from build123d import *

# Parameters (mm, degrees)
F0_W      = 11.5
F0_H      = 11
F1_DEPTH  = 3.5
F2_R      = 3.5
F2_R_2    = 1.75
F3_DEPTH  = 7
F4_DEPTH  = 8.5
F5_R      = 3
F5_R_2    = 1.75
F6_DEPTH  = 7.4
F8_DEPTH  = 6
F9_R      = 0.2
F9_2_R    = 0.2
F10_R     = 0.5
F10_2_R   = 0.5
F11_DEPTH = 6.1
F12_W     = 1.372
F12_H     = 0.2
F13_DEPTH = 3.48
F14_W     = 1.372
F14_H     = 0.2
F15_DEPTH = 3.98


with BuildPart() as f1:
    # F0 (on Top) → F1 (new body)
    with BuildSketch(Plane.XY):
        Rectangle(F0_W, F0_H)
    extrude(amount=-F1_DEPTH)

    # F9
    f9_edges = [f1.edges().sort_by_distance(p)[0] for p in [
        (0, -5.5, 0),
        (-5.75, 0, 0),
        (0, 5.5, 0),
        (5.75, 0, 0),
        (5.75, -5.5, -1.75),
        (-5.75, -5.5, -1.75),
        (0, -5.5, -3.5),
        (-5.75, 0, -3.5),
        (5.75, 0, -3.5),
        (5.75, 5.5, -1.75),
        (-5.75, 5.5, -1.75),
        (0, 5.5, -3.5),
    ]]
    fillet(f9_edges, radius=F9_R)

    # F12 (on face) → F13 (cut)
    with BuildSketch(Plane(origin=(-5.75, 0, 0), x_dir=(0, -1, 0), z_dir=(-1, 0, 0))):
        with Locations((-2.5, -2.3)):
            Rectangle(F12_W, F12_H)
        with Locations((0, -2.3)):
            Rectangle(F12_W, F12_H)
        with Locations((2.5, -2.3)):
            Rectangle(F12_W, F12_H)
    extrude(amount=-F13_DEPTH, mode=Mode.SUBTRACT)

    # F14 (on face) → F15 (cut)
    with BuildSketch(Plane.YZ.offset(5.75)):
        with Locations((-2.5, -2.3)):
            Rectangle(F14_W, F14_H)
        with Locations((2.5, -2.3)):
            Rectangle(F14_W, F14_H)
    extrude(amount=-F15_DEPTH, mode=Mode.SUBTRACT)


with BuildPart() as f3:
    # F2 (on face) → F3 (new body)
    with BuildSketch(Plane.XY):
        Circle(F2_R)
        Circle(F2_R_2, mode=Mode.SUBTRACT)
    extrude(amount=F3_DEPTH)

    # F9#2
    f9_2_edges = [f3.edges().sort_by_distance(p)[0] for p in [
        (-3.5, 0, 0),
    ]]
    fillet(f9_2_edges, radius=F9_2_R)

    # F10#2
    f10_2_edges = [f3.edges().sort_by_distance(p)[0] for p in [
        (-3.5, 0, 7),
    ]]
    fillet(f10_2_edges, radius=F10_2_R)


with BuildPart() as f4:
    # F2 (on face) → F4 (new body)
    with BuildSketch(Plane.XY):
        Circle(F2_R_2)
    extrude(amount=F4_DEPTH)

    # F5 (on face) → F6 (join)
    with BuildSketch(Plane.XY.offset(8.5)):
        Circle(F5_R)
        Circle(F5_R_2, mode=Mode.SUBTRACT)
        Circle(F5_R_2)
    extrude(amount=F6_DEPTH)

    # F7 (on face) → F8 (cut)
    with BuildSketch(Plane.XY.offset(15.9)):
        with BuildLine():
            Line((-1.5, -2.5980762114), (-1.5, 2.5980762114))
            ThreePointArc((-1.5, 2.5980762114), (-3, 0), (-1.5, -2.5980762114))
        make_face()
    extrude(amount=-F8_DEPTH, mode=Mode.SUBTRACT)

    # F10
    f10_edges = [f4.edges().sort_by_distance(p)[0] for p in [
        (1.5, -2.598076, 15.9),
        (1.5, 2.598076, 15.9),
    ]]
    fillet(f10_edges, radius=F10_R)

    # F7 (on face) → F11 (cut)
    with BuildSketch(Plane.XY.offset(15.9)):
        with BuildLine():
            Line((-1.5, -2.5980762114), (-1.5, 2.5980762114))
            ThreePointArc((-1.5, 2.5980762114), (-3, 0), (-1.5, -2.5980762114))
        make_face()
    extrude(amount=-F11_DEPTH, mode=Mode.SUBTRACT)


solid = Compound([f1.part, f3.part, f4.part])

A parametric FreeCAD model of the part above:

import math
import FreeCAD as App
import Part
import Sketcher

V = App.Vector
Q = App.Units.Quantity


def edges_at(feature, points):
    """Names of the edges that pass closest to the given points."""
    edges = feature.Shape.Edges
    near = lambda p: min(range(len(edges)), key=lambda i: edges[i].distToShape(Part.Vertex(*p))[0])
    return sorted({f"Edge{near(p) + 1}" for p in points})

doc = App.newDocument("Part")
body = doc.addObject("PartDesign::Body", "Body")

sketch1 = doc.addObject("Sketcher::SketchObject", "Sketch")
body.addObject(sketch1)
sketch1.AttachmentSupport = (doc.XY_Plane, [""])
sketch1.MapMode = "FlatFace"
sketch1.addGeometry([
    Part.LineSegment(V(-6, 6, 0), V(-6, -6, 0)),
    Part.LineSegment(V(-6, -6, 0), V(6, -6, 0)),
    Part.LineSegment(V(6, -6, 0), V(6, 6, 0)),
    Part.LineSegment(V(6, 6, 0), V(-6, 6, 0)),
], False)
sketch1.addConstraint([
    Sketcher.Constraint("Coincident", 0, 2, 1, 1),
    Sketcher.Constraint("Coincident", 1, 2, 2, 1),
    Sketcher.Constraint("Coincident", 2, 2, 3, 1),
    Sketcher.Constraint("Coincident", 3, 2, 0, 1),
    Sketcher.Constraint("Vertical", 0),
    Sketcher.Constraint("Horizontal", 1),
    Sketcher.Constraint("Vertical", 2),
    Sketcher.Constraint("Horizontal", 3),
    Sketcher.Constraint("Symmetric", 0, 2, 2, 2, -1, 1),
    Sketcher.Constraint("DistanceY", 0, 2, 0, 1, Q("11 mm")),
    Sketcher.Constraint("DistanceX", 1, 1, 1, 2, Q("11.5 mm")),
])
pad1 = doc.addObject("PartDesign::Pad", "Pad")
body.addObject(pad1)
pad1.Profile = sketch1
pad1.Length = 3.5
pad1.Reversed = True
doc.recompute()

fillet = doc.addObject("PartDesign::Fillet", "Fillet")
body.addObject(fillet)
fillet.Base = (pad1, ["Edge1"])
fillet.UseAllEdges = True
fillet.Radius = 0.2

sketch2 = doc.addObject("Sketcher::SketchObject", "Sketch001")
body.addObject(sketch2)
sketch2.AttachmentSupport = (doc.YZ_Plane, [""])
sketch2.MapMode = "FlatFace"
sketch2.AttachmentOffset = App.Placement(V(0, 0, -5.75), App.Rotation())
sketch2.addGeometry([
    Part.LineSegment(V(3.19, -2.2, 0), V(3.19, -2.4, 0)),
    Part.LineSegment(V(3.19, -2.4, 0), V(1.81, -2.4, 0)),
    Part.LineSegment(V(1.81, -2.4, 0), V(1.81, -2.2, 0)),
    Part.LineSegment(V(1.81, -2.2, 0), V(3.19, -2.2, 0)),
    Part.LineSegment(V(0.69, -2.2, 0), V(0.69, -2.4, 0)),
    Part.LineSegment(V(0.69, -2.4, 0), V(-0.69, -2.4, 0)),
    Part.LineSegment(V(-0.69, -2.4, 0), V(-0.69, -2.2, 0)),
    Part.LineSegment(V(-0.69, -2.2, 0), V(0.69, -2.2, 0)),
    Part.LineSegment(V(-1.81, -2.2, 0), V(-1.81, -2.4, 0)),
    Part.LineSegment(V(-1.81, -2.4, 0), V(-3.19, -2.4, 0)),
    Part.LineSegment(V(-3.19, -2.4, 0), V(-3.19, -2.2, 0)),
    Part.LineSegment(V(-3.19, -2.2, 0), V(-1.81, -2.2, 0)),
], False)
sketch2.addConstraint([
    Sketcher.Constraint("Coincident", 0, 2, 1, 1),
    Sketcher.Constraint("Coincident", 1, 2, 2, 1),
    Sketcher.Constraint("Coincident", 2, 2, 3, 1),
    Sketcher.Constraint("Coincident", 3, 2, 0, 1),
    Sketcher.Constraint("Coincident", 4, 2, 5, 1),
    Sketcher.Constraint("Coincident", 5, 2, 6, 1),
    Sketcher.Constraint("Coincident", 6, 2, 7, 1),
    Sketcher.Constraint("Coincident", 7, 2, 4, 1),
    Sketcher.Constraint("Coincident", 8, 2, 9, 1),
    Sketcher.Constraint("Coincident", 9, 2, 10, 1),
    Sketcher.Constraint("Coincident", 10, 2, 11, 1),
    Sketcher.Constraint("Coincident", 11, 2, 8, 1),
    Sketcher.Constraint("Vertical", 0),
    Sketcher.Constraint("Horizontal", 1),
    Sketcher.Constraint("Vertical", 2),
    Sketcher.Constraint("Horizontal", 3),
    Sketcher.Constraint("Vertical", 4),
    Sketcher.Constraint("Horizontal", 5),
    Sketcher.Constraint("Vertical", 6),
    Sketcher.Constraint("Horizontal", 7),
    Sketcher.Constraint("Vertical", 8),
    Sketcher.Constraint("Horizontal", 9),
    Sketcher.Constraint("Vertical", 10),
    Sketcher.Constraint("Horizontal", 11),
    Sketcher.Constraint("Symmetric", 1, 2, 8, 2, -2),
    Sketcher.Constraint("Symmetric", 3, 2, 10, 2, -2),
    Sketcher.Constraint("Horizontal", 1, 2, 4, 2),
    Sketcher.Constraint("Horizontal", 3, 2, 6, 2),
    Sketcher.Constraint("Equal", 3, 5),
    Sketcher.Constraint("DistanceY", 0, 2, 0, 1, Q("0.2 mm")),
    Sketcher.Constraint("DistanceY", 0, 2, -1, 1, Q("2.4 mm")),
    Sketcher.Constraint("DistanceX", 4, 2, 0, 2, Q("2.5 mm")),
    Sketcher.Constraint("DistanceX", 8, 2, 4, 2, Q("2.5 mm")),
    Sketcher.Constraint("DistanceX", 1, 2, 1, 1, Q("1.372 mm")),
])
pocket1 = doc.addObject("PartDesign::Pocket", "Pocket")
body.addObject(pocket1)
pocket1.Profile = sketch2
pocket1.Length = 3.48
pocket1.Reversed = True

sketch3 = doc.addObject("Sketcher::SketchObject", "Sketch002")
body.addObject(sketch3)
sketch3.AttachmentSupport = (doc.YZ_Plane, [""])
sketch3.MapMode = "FlatFace"
sketch3.AttachmentOffset = App.Placement(V(0, 0, 5.75), App.Rotation())
sketch3.addGeometry([
    Part.LineSegment(V(-3.19, -2.2, 0), V(-3.19, -2.4, 0)),
    Part.LineSegment(V(-3.19, -2.4, 0), V(-1.81, -2.4, 0)),
    Part.LineSegment(V(-1.81, -2.4, 0), V(-1.81, -2.2, 0)),
    Part.LineSegment(V(-1.81, -2.2, 0), V(-3.19, -2.2, 0)),
    Part.LineSegment(V(1.81, -2.2, 0), V(1.81, -2.4, 0)),
    Part.LineSegment(V(1.81, -2.4, 0), V(3.19, -2.4, 0)),
    Part.LineSegment(V(3.19, -2.4, 0), V(3.19, -2.2, 0)),
    Part.LineSegment(V(3.19, -2.2, 0), V(1.81, -2.2, 0)),
], False)
sketch3.addConstraint([
    Sketcher.Constraint("Coincident", 0, 2, 1, 1),
    Sketcher.Constraint("Coincident", 1, 2, 2, 1),
    Sketcher.Constraint("Coincident", 2, 2, 3, 1),
    Sketcher.Constraint("Coincident", 3, 2, 0, 1),
    Sketcher.Constraint("Coincident", 4, 2, 5, 1),
    Sketcher.Constraint("Coincident", 5, 2, 6, 1),
    Sketcher.Constraint("Coincident", 6, 2, 7, 1),
    Sketcher.Constraint("Coincident", 7, 2, 4, 1),
    Sketcher.Constraint("Vertical", 0),
    Sketcher.Constraint("Horizontal", 1),
    Sketcher.Constraint("Vertical", 2),
    Sketcher.Constraint("Horizontal", 3),
    Sketcher.Constraint("Vertical", 4),
    Sketcher.Constraint("Horizontal", 5),
    Sketcher.Constraint("Vertical", 6),
    Sketcher.Constraint("Horizontal", 7),
    Sketcher.Constraint("Symmetric", 1, 2, 4, 2, -2),
    Sketcher.Constraint("Symmetric", 3, 2, 6, 2, -2),
    Sketcher.Constraint("DistanceY", 0, 2, 0, 1, Q("0.2 mm")),
    Sketcher.Constraint("DistanceX", 0, 2, 4, 2, Q("5 mm")),
    Sketcher.Constraint("DistanceY", 0, 2, -1, 1, Q("2.4 mm")),
    Sketcher.Constraint("DistanceX", 1, 1, 1, 2, Q("1.372 mm")),
])
pocket2 = doc.addObject("PartDesign::Pocket", "Pocket001")
body.addObject(pocket2)
pocket2.Profile = sketch3
pocket2.Length = 3.98
body2 = doc.addObject("PartDesign::Body", "Body001")

sketch4 = doc.addObject("Sketcher::SketchObject", "Sketch003")
body2.addObject(sketch4)
sketch4.AttachmentSupport = (doc.getObject("XY_Plane001"), [""])
sketch4.MapMode = "FlatFace"
sketch4.addGeometry([
    Part.Circle(V(0, 0, 0), V(0, 0, 1), 3.5),
    Part.Circle(V(0, 0, 0), V(0, 0, 1), 1.8),
], False)
sketch4.addConstraint([
    Sketcher.Constraint("Coincident", 0, 3, -1, 1),
    Sketcher.Constraint("Coincident", 1, 3, -1, 1),
    Sketcher.Constraint("Diameter", 0, Q("7 mm")),
    Sketcher.Constraint("Diameter", 1, Q("3.5 mm")),
])
pad2 = doc.addObject("PartDesign::Pad", "Pad001")
body2.addObject(pad2)
pad2.Profile = sketch4
pad2.Length = 7
doc.recompute()

fillet2 = doc.addObject("PartDesign::Fillet", "Fillet001")
body2.addObject(fillet2)
fillet2.Base = (pad2, edges_at(pad2, [(-3.5, 0, 0)]))
fillet2.Radius = 0.2
doc.recompute()

fillet3 = doc.addObject("PartDesign::Fillet", "Fillet002")
body2.addObject(fillet3)
fillet3.Base = (fillet2, edges_at(fillet2, [(-3.5, 0, 7)]))
fillet3.Radius = 0.5
body3 = doc.addObject("PartDesign::Body", "Body002")

sketch5 = doc.addObject("Sketcher::SketchObject", "Sketch004")
body3.addObject(sketch5)
sketch5.AttachmentSupport = (doc.getObject("XY_Plane002"), [""])
sketch5.MapMode = "FlatFace"
sketch5.addGeometry(Part.Circle(V(0, 0, 0), V(0, 0, 1), 1.8), False)
sketch5.addConstraint([
    Sketcher.Constraint("Coincident", 0, 3, -1, 1),
    Sketcher.Constraint("Diameter", 0, Q("3.5 mm")),
])
pad3 = doc.addObject("PartDesign::Pad", "Pad002")
body3.addObject(pad3)
pad3.Profile = sketch5
pad3.Length = 8.5

sketch6 = doc.addObject("Sketcher::SketchObject", "Sketch005")
body3.addObject(sketch6)
sketch6.AttachmentSupport = (doc.getObject("XY_Plane002"), [""])
sketch6.MapMode = "FlatFace"
sketch6.AttachmentOffset = App.Placement(V(0, 0, 8.5), App.Rotation())
sketch6.addGeometry(Part.Circle(V(0, 0, 0), V(0, 0, 1), 3), False)
sketch6.addConstraint([
    Sketcher.Constraint("Coincident", 0, 3, -1, 1),
    Sketcher.Constraint("Diameter", 0, Q("6 mm")),
])
pad4 = doc.addObject("PartDesign::Pad", "Pad003")
body3.addObject(pad4)
pad4.Profile = sketch6
pad4.Length = 7.4

sketch7 = doc.addObject("Sketcher::SketchObject", "Sketch006")
body3.addObject(sketch7)
sketch7.AttachmentSupport = (doc.getObject("XY_Plane002"), [""])
sketch7.MapMode = "FlatFace"
sketch7.AttachmentOffset = App.Placement(V(0, 0, 15.9), App.Rotation())
sketch7.addGeometry([
    Part.LineSegment(V(-1.5, -2.6, 0), V(-1.5, 2.6, 0)),
    Part.ArcOfCircle(Part.Circle(V(0, 0, 0), V(0, 0, 1), 3), math.radians(120), math.radians(240)),
], False)
sketch7.addConstraint([
    Sketcher.Constraint("Coincident", 0, 1, 1, 2),
    Sketcher.Constraint("Coincident", 1, 1, 0, 2),
    Sketcher.Constraint("Vertical", 0),
    Sketcher.Constraint("Coincident", 1, 3, -1, 1),
    Sketcher.Constraint("Radius", 1, Q("3 mm")),
    Sketcher.Constraint("DistanceX", 0, 1, -1, 1, Q("1.5 mm")),
])
pocket3 = doc.addObject("PartDesign::Pocket", "Pocket002")
body3.addObject(pocket3)
pocket3.Profile = sketch7
pocket3.Length = 6
doc.recompute()

fillet4 = doc.addObject("PartDesign::Fillet", "Fillet003")
body3.addObject(fillet4)
fillet4.Base = (pocket3, edges_at(pocket3, [(1.5, -2.598, 15.9), (1.5, 2.598, 15.9)]))
fillet4.Radius = 0.5

sketch8 = doc.addObject("Sketcher::SketchObject", "Sketch007")
body3.addObject(sketch8)
sketch8.AttachmentSupport = (doc.getObject("XY_Plane002"), [""])
sketch8.MapMode = "FlatFace"
sketch8.AttachmentOffset = App.Placement(V(0, 0, 15.9), App.Rotation())
sketch8.addGeometry([
    Part.LineSegment(V(-1.5, -2.6, 0), V(-1.5, 2.6, 0)),
    Part.ArcOfCircle(Part.Circle(V(0, 0, 0), V(0, 0, 1), 3), math.radians(120), math.radians(240)),
], False)
sketch8.addConstraint([
    Sketcher.Constraint("Coincident", 0, 1, 1, 2),
    Sketcher.Constraint("Coincident", 1, 1, 0, 2),
    Sketcher.Constraint("Vertical", 0),
    Sketcher.Constraint("Coincident", 1, 3, -1, 1),
    Sketcher.Constraint("Radius", 1, Q("3 mm")),
    Sketcher.Constraint("DistanceX", 0, 1, -1, 1, Q("1.5 mm")),
])
pocket4 = doc.addObject("PartDesign::Pocket", "Pocket003")
body3.addObject(pocket4)
pocket4.Profile = sketch8
pocket4.Length = 6.1

doc.recompute()
